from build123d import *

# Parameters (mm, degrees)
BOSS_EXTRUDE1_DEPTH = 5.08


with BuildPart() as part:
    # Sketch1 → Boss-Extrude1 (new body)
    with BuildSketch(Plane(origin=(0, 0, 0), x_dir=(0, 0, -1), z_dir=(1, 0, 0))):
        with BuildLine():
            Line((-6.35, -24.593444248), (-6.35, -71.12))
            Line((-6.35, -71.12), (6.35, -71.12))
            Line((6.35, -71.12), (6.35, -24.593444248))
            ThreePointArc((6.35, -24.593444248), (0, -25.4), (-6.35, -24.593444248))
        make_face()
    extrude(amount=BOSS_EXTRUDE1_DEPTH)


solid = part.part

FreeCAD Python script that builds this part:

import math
import FreeCAD as App
import Part
import Sketcher
Q = App.Units.Quantity

doc = App.newDocument("Part")
params = doc.addObject("Spreadsheet::Sheet", "Params")
for row, (alias, value) in enumerate([
    ("sketch1_radius", "1 in"),
    ("sketch1_height", "0.5 in"),
    ("pad1_length", "0.2 in"),
], start=1):
    params.set(f"A{row}", alias)
    params.set(f"B{row}", "=" + value)
    params.setAlias(f"B{row}", alias)

body = doc.addObject("PartDesign::Body", "Body")

sketch1 = body.newObject("Sketcher::SketchObject", "Sketch")
sketch1.AttachmentSupport = (doc.getObject("YZ_Plane"), [""])
sketch1.MapMode = "FlatFace"
sketch1.addGeometry([
    Part.LineSegment(App.Vector(-25, 6, 0), App.Vector(-71, 6, 0)),
    Part.LineSegment(App.Vector(-71, 6, 0), App.Vector(-71, -6, 0)),
    Part.LineSegment(App.Vector(-71, -6, 0), App.Vector(-25, -6, 0)),
    Part.ArcOfCircle(Part.Circle(App.Vector(0, 0, 0), App.Vector(0, 0, 1), 25), math.radians(166), math.radians(194)),
], False)
sketch1.addConstraint([
    Sketcher.Constraint("Coincident", 0, 2, 1, 1),
    Sketcher.Constraint("Coincident", 1, 2, 2, 1),
    Sketcher.Constraint("Coincident", 2, 2, 3, 2),
    Sketcher.Constraint("Coincident", 3, 1, 0, 1),
    Sketcher.Constraint("Horizontal", 0),
    Sketcher.Constraint("Vertical", 1),
    Sketcher.Constraint("Horizontal", 2),
    Sketcher.Constraint("Coincident", 3, 3, -1, 1),
    Sketcher.Constraint("Vertical", 2, 2, 3, 1),
    Sketcher.Constraint("Radius", 3, Q("1 in")),
    Sketcher.Constraint("DistanceY", 1, 2, 1, 1, Q("0.5 in")),
    Sketcher.Constraint("DistanceX", 0, 2, -1, 1, Q("2.8 in")),
])
sketch1.setExpression("Constraints[9]", "Params.sketch1_radius")
sketch1.setExpression("Constraints[10]", "Params.sketch1_height")
pad1 = body.newObject("PartDesign::Pad", "Pad")
pad1.Profile = sketch1
pad1.setExpression("Length", "Params.pad1_length")

doc.recompute()
